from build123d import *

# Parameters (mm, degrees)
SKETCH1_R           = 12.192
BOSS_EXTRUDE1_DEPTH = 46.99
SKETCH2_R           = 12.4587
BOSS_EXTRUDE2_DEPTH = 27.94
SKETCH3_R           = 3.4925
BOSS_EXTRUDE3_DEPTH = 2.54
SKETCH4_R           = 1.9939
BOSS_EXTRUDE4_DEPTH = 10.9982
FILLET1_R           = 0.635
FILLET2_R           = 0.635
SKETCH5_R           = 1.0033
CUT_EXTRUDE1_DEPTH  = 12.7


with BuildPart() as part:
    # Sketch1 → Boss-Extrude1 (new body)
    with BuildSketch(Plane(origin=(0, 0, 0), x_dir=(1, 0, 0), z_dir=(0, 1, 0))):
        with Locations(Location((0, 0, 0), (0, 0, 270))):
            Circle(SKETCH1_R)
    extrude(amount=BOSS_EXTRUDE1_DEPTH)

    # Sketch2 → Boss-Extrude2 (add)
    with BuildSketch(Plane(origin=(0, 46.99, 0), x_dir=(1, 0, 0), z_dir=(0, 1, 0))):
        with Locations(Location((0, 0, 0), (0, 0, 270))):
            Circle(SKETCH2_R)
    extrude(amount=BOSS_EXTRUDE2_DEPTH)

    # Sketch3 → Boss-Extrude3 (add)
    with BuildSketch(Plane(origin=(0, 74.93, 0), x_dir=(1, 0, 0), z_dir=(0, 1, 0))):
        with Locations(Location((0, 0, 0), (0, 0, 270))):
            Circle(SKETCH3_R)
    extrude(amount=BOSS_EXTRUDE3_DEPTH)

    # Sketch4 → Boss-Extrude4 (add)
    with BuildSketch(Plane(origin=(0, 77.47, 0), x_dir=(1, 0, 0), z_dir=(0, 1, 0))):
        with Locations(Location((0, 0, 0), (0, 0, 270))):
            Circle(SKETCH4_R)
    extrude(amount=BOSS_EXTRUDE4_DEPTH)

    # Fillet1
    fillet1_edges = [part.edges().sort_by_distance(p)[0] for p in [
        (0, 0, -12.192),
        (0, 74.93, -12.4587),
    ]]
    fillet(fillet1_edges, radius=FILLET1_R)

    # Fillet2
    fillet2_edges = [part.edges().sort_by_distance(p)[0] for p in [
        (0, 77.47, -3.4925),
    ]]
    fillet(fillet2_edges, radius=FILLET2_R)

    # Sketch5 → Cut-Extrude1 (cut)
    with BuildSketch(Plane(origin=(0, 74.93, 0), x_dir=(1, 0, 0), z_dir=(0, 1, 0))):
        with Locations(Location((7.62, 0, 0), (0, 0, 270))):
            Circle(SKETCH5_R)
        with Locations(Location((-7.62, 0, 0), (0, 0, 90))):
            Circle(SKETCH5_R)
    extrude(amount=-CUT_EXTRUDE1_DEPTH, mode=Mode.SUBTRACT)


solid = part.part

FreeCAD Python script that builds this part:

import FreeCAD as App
import Part
import Sketcher
Q = App.Units.Quantity


def edges_at(feature, points):
    """Names of the edges that pass closest to the given points."""
    edges = feature.Shape.Edges
    near = lambda p: min(range(len(edges)), key=lambda i: edges[i].distToShape(Part.Vertex(*p))[0])
    return sorted({f"Edge{near(p) + 1}" for p in points})

doc = App.newDocument("Part")
body = doc.addObject("PartDesign::Body", "Body")

# Sketch on XZ plane
sketch1 = doc.addObject("Sketcher::SketchObject", "Sketch")
body.addObject(sketch1)
sketch1.AttachmentSupport = (doc.XZ_Plane, [""])
sketch1.MapMode = "FlatFace"
sketch1.addGeometry(Part.Circle(App.Vector(0, 0, 0), App.Vector(0, 0, 1), 12), False)
sketch1.addConstraint(Sketcher.Constraint("Coincident", 0, 3, -1, 1))
sketch1.addConstraint(Sketcher.Constraint("Diameter", 0, Q("0.96 in")))
pad1 = doc.addObject("PartDesign::Pad", "Pad")
body.addObject(pad1)
pad1.Profile = sketch1
pad1.Length = Q("1.85 in")
pad1.Reversed = True

# Sketch on XZ plane
sketch2 = doc.addObject("Sketcher::SketchObject", "Sketch001")
body.addObject(sketch2)
sketch2.AttachmentSupport = (doc.XZ_Plane, [""])
sketch2.MapMode = "FlatFace"
sketch2.AttachmentOffset = App.Placement(App.Vector(0, 0, -1.85 * 25.4), App.Rotation())
sketch2.addGeometry(Part.Circle(App.Vector(0, 0, 0), App.Vector(0, 0, 1), 12), False)
sketch2.addConstraint(Sketcher.Constraint("Coincident", 0, 3, -1, 1))
sketch2.addConstraint(Sketcher.Constraint("Diameter", 0, Q("0.981 in")))
pad2 = doc.addObject("PartDesign::Pad", "Pad001")
body.addObject(pad2)
pad2.Profile = sketch2
pad2.Length = Q("1.1 in")
pad2.Reversed = True

# Sketch on XZ plane
sketch3 = doc.addObject("Sketcher::SketchObject", "Sketch002")
body.addObject(sketch3)
sketch3.AttachmentSupport = (doc.XZ_Plane, [""])
sketch3.MapMode = "FlatFace"
sketch3.AttachmentOffset = App.Placement(App.Vector(0, 0, -2.95 * 25.4), App.Rotation())
sketch3.addGeometry(Part.Circle(App.Vector(0, 0, 0), App.Vector(0, 0, 1), 3.5), False)
sketch3.addConstraint(Sketcher.Constraint("Coincident", 0, 3, -1, 1))
sketch3.addConstraint(Sketcher.Constraint("Diameter", 0, Q("0.275 in")))
pad3 = doc.addObject("PartDesign::Pad", "Pad002")
body.addObject(pad3)
pad3.Profile = sketch3
pad3.Length = Q("0.1 in")
pad3.Reversed = True

# Sketch on XZ plane
sketch4 = doc.addObject("Sketcher::SketchObject", "Sketch003")
body.addObject(sketch4)
sketch4.AttachmentSupport = (doc.XZ_Plane, [""])
sketch4.MapMode = "FlatFace"
sketch4.AttachmentOffset = App.Placement(App.Vector(0, 0, -3.05 * 25.4), App.Rotation())
sketch4.addGeometry(Part.Circle(App.Vector(0, 0, 0), App.Vector(0, 0, 1), 2), False)
sketch4.addConstraint(Sketcher.Constraint("Coincident", 0, 3, -1, 1))
sketch4.addConstraint(Sketcher.Constraint("Diameter", 0, Q("0.157 in")))
pad4 = doc.addObject("PartDesign::Pad", "Pad003")
body.addObject(pad4)
pad4.Profile = sketch4
pad4.Length = Q("0.433 in")
pad4.Reversed = True
doc.recompute()

fillet = doc.addObject("PartDesign::Fillet", "Fillet")
body.addObject(fillet)
fillet.Base = (pad4, edges_at(pad4, [(0, 0, -12.192), (0, 74.93, -12.459)]))
fillet.Radius = Q("0.025 in")
doc.recompute()

fillet2 = doc.addObject("PartDesign::Fillet", "Fillet001")
body.addObject(fillet2)
fillet2.Base = (fillet, edges_at(fillet, [(0, 77.47, -3.493)]))
fillet2.Radius = Q("0.025 in")

# Sketch on XZ plane
sketch5 = doc.addObject("Sketcher::SketchObject", "Sketch004")
body.addObject(sketch5)
sketch5.AttachmentSupport = (doc.XZ_Plane, [""])
sketch5.MapMode = "FlatFace"
sketch5.AttachmentOffset = App.Placement(App.Vector(0, 0, -2.95 * 25.4), App.Rotation())
sketch5.addGeometry(Part.Circle(App.Vector(7.6, 0, 0), App.Vector(0, 0, 1), 1), False)
sketch5.addGeometry(Part.Circle(App.Vector(-7.6, 0, 0), App.Vector(0, 0, 1), 1), False)
sketch5.addConstraint(Sketcher.Constraint("Equal", 0, 1))
sketch5.addConstraint(Sketcher.Constraint("Symmetric", 0, 3, 1, 3, -1, 1))
sketch5.addConstraint(Sketcher.Constraint("PointOnObject", 0, 3, -1))
sketch5.addConstraint(Sketcher.Constraint("Diameter", 0, Q("0.079 in")))
sketch5.addConstraint(Sketcher.Constraint("DistanceX", -1, 1, 0, 3, Q("0.3 in")))
pocket1 = doc.addObject("PartDesign::Pocket", "Pocket")
body.addObject(pocket1)
pocket1.Profile = sketch5
pocket1.Length = Q("0.5 in")
pocket1.Reversed = True

doc.recompute()
